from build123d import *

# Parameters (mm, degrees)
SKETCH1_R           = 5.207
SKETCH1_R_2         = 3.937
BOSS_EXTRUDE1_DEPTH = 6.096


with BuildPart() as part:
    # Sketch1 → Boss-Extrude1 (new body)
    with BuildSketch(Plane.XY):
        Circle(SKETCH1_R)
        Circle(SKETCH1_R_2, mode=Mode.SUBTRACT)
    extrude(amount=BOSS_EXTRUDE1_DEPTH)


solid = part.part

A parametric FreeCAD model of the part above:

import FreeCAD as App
import Part
import Sketcher
from FreeCAD import Vector
Q = App.Units.Quantity

doc = App.newDocument("Part")
body = doc.addObject("PartDesign::Body", "Body")

sketch1 = doc.addObject("Sketcher::SketchObject", "Sketch")
body.addObject(sketch1)
sketch1.AttachmentSupport = (doc.XY_Plane, [""])
sketch1.MapMode = "FlatFace"
sketch1.addGeometry([
    Part.Circle(Vector(0, 0, 0), Vector(0, 0, 1), 5.207),
    Part.Circle(Vector(0, 0, 0), Vector(0, 0, 1), 3.937),
], False)
sketch1.addConstraint([
    Sketcher.Constraint("Coincident", 0, 3, -1, 1),
    Sketcher.Constraint("Coincident", 1, 3, -1, 1),
    Sketcher.Constraint("Diameter", 0, Q("0.41 in")),
    Sketcher.Constraint("Diameter", 1, Q("0.31 in")),
])
pad1 = doc.addObject("PartDesign::Pad", "Pad")
body.addObject(pad1)
pad1.Profile = sketch1
pad1.Length = Q("0.24 in")

doc.recompute()
